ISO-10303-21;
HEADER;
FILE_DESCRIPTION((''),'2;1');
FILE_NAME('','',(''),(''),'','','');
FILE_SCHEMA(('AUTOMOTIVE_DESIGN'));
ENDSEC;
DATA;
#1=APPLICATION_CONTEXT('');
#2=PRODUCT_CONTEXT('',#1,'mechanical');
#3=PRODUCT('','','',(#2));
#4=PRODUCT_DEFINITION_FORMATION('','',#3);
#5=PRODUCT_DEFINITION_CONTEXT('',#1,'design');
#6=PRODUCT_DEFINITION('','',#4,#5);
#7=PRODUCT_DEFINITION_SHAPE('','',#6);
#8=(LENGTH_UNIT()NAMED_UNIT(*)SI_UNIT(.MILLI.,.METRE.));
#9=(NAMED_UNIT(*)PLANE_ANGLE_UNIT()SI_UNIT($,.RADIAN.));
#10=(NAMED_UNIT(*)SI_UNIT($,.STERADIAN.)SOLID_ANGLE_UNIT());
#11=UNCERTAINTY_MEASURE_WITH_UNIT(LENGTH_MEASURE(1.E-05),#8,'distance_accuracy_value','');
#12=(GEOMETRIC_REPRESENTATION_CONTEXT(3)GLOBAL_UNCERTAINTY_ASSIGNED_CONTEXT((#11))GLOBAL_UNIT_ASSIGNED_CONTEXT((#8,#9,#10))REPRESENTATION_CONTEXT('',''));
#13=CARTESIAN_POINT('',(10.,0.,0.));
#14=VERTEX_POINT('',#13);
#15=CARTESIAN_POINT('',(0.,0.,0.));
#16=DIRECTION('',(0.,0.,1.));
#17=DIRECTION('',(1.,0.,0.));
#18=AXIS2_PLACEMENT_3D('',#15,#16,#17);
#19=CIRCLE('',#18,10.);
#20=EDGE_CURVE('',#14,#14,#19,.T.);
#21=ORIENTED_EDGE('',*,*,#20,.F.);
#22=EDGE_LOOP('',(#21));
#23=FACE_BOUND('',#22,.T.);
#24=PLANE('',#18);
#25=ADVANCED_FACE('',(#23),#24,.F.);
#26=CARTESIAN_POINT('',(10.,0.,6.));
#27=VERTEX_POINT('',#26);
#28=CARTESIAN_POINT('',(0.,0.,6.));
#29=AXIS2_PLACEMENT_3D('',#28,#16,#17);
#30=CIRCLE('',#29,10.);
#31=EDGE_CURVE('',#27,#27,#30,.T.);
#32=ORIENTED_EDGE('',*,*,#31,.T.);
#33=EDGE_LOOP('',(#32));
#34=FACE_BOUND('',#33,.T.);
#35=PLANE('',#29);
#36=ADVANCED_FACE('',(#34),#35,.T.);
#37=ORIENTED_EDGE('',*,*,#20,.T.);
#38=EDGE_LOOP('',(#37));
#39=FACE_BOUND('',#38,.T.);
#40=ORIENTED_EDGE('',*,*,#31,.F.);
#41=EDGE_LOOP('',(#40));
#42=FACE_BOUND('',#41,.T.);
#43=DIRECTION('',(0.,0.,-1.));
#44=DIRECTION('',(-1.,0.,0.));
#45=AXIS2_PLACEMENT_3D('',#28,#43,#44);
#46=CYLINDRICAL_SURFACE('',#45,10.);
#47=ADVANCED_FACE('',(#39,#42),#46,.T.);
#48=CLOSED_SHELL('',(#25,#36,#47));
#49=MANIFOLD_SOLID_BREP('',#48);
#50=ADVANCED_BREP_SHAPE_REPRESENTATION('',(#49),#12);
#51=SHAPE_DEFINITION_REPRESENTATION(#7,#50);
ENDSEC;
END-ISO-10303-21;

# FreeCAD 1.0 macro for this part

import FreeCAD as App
import Part
import Sketcher
from FreeCAD import Vector
Q = App.Units.Quantity

doc = App.newDocument("Part")
body = doc.addObject("PartDesign::Body", "Body")

# Sketch on XY plane
sketch1 = body.newObject("Sketcher::SketchObject", "Sketch")
sketch1.AttachmentSupport = (doc.getObject("XY_Plane"), [""])
sketch1.MapMode = "FlatFace"
sketch1.addGeometry(Part.Circle(Vector(0, 0, 0), Vector(0, 0, 1), 10), False)
sketch1.addConstraint(Sketcher.Constraint("Coincident", 0, 3, -1, 1))
sketch1.addConstraint(Sketcher.Constraint("Diameter", 0, Q("20 mm")))
pad1 = body.newObject("PartDesign::Pad", "Pad")
pad1.Profile = sketch1
pad1.Length = 6

doc.recompute()
